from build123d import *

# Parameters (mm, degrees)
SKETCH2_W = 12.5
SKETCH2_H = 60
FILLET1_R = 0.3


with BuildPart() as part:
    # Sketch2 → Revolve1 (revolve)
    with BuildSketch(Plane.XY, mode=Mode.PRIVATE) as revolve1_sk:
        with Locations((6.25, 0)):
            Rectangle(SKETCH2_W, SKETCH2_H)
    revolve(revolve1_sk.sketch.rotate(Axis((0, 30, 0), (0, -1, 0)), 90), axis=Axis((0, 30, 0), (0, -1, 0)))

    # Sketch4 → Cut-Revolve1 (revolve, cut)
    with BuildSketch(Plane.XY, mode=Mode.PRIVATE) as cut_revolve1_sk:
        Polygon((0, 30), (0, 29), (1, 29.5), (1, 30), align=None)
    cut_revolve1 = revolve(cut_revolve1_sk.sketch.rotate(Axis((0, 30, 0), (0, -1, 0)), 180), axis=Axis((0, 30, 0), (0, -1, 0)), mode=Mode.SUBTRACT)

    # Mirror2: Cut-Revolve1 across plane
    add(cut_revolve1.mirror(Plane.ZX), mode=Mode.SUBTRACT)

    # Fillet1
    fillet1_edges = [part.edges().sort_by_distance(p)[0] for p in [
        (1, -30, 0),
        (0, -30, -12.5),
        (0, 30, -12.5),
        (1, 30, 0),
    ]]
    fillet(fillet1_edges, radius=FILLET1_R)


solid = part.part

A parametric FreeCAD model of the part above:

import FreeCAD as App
import Part
import Sketcher

V = App.Vector
Q = App.Units.Quantity


def edges_at(feature, points):
    """Names of the edges that pass closest to the given points."""
    edges = feature.Shape.Edges
    near = lambda p: min(range(len(edges)), key=lambda i: edges[i].distToShape(Part.Vertex(*p))[0])
    return sorted({f"Edge{near(p) + 1}" for p in points})


def add_polygon(sketch, points):
    """Adds a closed chain of lines whose ends are joined by coincident constraints."""
    first, n = sketch.GeometryCount, len(points)
    for a, b in zip(points, points[1:] + points[:1]):
        sketch.addGeometry(Part.LineSegment(App.Vector(*a, 0), App.Vector(*b, 0)), False)
    for i in range(n):
        sketch.addConstraint(Sketcher.Constraint("Coincident", first + i, 2, first + (i + 1) % n, 1))

doc = App.newDocument("Part")
body = doc.addObject("PartDesign::Body", "Body")

# Sketch on XY plane
sketch1 = body.newObject("Sketcher::SketchObject", "Sketch")
sketch1.AttachmentSupport = (doc.getObject("XY_Plane"), [""])
sketch1.MapMode = "FlatFace"
add_polygon(sketch1, [(0, 30), (0, -30), (12, -30), (12, 30)])  # lines 0-3
sketch1.addConstraint([
    Sketcher.Constraint("Vertical", 0),
    Sketcher.Constraint("Horizontal", 1),
    Sketcher.Constraint("Vertical", 2),
    Sketcher.Constraint("Horizontal", 3),
    Sketcher.Constraint("Symmetric", 0, 2, 3, 2, -1, 1),
    Sketcher.Constraint("DistanceY", 0, 2, 0, 1, Q("60 mm")),
    Sketcher.Constraint("DistanceX", 1, 1, 1, 2, Q("12.5 mm")),
])
revolution = body.newObject("PartDesign::Revolution", "Revolution")
revolution.Profile = sketch1
revolution.ReferenceAxis = (sketch1, ["V_Axis"])
revolution.Angle = 360

# Sketch on XY plane
sketch2 = body.newObject("Sketcher::SketchObject", "Sketch001")
sketch2.AttachmentSupport = (doc.getObject("XY_Plane"), [""])
sketch2.MapMode = "FlatFace"
add_polygon(sketch2, [(0, 30), (0, 29), (1, 29.5), (1, 30)])  # lines 0-3
sketch2.addConstraint([
    Sketcher.Constraint("Vertical", 0),
    Sketcher.Constraint("Vertical", 2),
    Sketcher.Constraint("Horizontal", 3),
    Sketcher.Constraint("PointOnObject", 0, 2, -2),
    Sketcher.Constraint("Equal", 3, 0),
    Sketcher.Constraint("DistanceX", 3, 2, 3, 1, Q("1 mm")),
    Sketcher.Constraint("DistanceY", 2, 1, 2, 2, Q("0.5 mm")),
    Sketcher.Constraint("DistanceY", -1, 1, 0, 2, Q("29 mm")),
])
groove = body.newObject("PartDesign::Groove", "Groove")
groove.Profile = sketch2
groove.ReferenceAxis = (sketch2, ["V_Axis"])
groove.Angle = 360
doc.recompute()

mirrored = body.newObject("PartDesign::Mirrored", "Mirrored")
mirrored.Originals = [groove]
mirrored.MirrorPlane = (doc.getObject("XZ_Plane"), [""])
body.Tip = mirrored
doc.recompute()

fillet = body.newObject("PartDesign::Fillet", "Fillet")
fillet.Base = (mirrored, edges_at(mirrored, [
    (1, -30, 0),
    (0, -30, -12.5),
    (0, 30, -12.5),
    (1, 30, 0),
]))
fillet.Radius = 0.3

doc.recompute()
